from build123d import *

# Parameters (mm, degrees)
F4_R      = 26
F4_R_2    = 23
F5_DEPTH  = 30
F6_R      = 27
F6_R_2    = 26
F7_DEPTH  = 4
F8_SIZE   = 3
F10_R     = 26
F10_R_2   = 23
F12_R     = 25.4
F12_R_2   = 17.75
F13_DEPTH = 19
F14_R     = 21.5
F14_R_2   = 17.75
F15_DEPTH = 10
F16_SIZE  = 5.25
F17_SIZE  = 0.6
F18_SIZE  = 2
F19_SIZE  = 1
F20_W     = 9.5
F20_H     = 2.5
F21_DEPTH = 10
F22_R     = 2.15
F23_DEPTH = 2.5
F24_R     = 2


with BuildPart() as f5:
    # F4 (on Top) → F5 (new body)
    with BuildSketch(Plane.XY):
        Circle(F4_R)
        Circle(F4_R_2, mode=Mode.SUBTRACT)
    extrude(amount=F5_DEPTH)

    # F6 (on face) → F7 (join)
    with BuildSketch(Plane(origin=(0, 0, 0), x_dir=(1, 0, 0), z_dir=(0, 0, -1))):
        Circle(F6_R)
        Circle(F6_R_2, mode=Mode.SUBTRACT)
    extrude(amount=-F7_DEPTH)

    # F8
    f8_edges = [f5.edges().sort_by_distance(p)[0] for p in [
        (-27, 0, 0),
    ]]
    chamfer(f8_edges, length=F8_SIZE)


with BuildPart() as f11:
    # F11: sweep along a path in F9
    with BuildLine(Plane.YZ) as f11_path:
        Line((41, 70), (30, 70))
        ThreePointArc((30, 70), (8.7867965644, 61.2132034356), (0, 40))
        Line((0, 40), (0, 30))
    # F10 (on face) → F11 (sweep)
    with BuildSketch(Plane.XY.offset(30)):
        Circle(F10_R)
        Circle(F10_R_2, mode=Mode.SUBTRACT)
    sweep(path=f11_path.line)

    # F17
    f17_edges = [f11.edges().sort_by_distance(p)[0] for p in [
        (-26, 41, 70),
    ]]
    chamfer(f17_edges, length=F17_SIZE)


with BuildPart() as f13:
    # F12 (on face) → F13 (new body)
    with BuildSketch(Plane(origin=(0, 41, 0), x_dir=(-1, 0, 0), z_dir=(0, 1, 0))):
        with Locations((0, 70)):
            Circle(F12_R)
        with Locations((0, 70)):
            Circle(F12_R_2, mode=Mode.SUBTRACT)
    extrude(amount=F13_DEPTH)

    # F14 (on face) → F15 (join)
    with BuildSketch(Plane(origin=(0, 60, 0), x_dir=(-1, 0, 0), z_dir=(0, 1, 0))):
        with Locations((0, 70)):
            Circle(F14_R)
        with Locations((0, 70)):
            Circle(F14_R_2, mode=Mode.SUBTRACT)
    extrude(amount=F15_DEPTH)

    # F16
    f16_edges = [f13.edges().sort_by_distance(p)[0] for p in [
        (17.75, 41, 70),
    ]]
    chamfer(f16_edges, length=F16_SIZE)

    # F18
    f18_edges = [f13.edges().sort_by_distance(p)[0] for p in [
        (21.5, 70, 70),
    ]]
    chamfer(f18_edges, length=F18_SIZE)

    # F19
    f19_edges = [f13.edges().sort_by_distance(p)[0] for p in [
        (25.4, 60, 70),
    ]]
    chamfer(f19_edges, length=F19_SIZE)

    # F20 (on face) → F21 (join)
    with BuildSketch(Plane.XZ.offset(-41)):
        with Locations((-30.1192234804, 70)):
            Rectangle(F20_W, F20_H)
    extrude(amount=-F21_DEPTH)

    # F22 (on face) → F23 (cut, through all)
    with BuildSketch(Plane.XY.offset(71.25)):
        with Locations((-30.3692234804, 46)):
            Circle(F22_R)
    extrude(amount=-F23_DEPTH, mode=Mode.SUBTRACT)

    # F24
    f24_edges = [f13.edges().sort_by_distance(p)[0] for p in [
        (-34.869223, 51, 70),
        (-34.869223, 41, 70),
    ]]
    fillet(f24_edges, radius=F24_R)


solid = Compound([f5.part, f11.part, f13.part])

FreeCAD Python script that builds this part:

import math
import FreeCAD as App
import Part
import Sketcher
from FreeCAD import Vector
Q = App.Units.Quantity


def edges_at(feature, points):
    """Names of the edges that pass closest to the given points."""
    edges = feature.Shape.Edges
    near = lambda p: min(range(len(edges)), key=lambda i: edges[i].distToShape(Part.Vertex(*p))[0])
    return sorted({f"Edge{near(p) + 1}" for p in points})

doc = App.newDocument("Part")
body = doc.addObject("PartDesign::Body", "Body")

# Sketch on XY plane
sketch1 = body.newObject("Sketcher::SketchObject", "Sketch")
sketch1.AttachmentSupport = (doc.getObject("XY_Plane"), [""])
sketch1.MapMode = "FlatFace"
sketch1.addGeometry([
    Part.Circle(Vector(0, 0, 0), Vector(0, 0, 1), 26),
    Part.Circle(Vector(0, 0, 0), Vector(0, 0, 1), 23),
], False)
sketch1.addConstraint([
    Sketcher.Constraint("Coincident", 0, 3, -1, 1),
    Sketcher.Constraint("Coincident", 1, 3, -1, 1),
    Sketcher.Constraint("Diameter", 0, Q("52 mm")),
    Sketcher.Constraint("Diameter", 1, Q("46 mm")),
])
pad1 = body.newObject("PartDesign::Pad", "Pad")
pad1.Profile = sketch1
pad1.Length = 30

# Sketch on XY plane
sketch2 = body.newObject("Sketcher::SketchObject", "Sketch001")
sketch2.AttachmentSupport = (doc.getObject("XY_Plane"), [""])
sketch2.MapMode = "FlatFace"
sketch2.addGeometry([
    Part.Circle(Vector(0, 0, 0), Vector(0, 0, 1), 27),
    Part.Circle(Vector(0, 0, 0), Vector(0, 0, 1), 26),
], False)
sketch2.addConstraint([
    Sketcher.Constraint("Coincident", 0, 3, -1, 1),
    Sketcher.Constraint("Coincident", 1, 3, -1, 1),
    Sketcher.Constraint("Diameter", 0, Q("54 mm")),
    Sketcher.Constraint("Diameter", 1, Q("52 mm")),
])
pad2 = body.newObject("PartDesign::Pad", "Pad001")
pad2.Profile = sketch2
pad2.Length = 4
doc.recompute()

chamfer = body.newObject("PartDesign::Chamfer", "Chamfer")
chamfer.Base = (pad2, edges_at(pad2, [(-27, 0, 0)]))
chamfer.Size = 3
body2 = doc.addObject("PartDesign::Body", "Body001")

# Sketch on XY plane
sketch3 = body2.newObject("Sketcher::SketchObject", "Sketch002")
sketch3.AttachmentSupport = (doc.getObject("XY_Plane001"), [""])
sketch3.MapMode = "FlatFace"
sketch3.AttachmentOffset = App.Placement(Vector(0, 0, 30), App.Rotation())
sketch3.addGeometry([
    Part.Circle(Vector(0, 0, 0), Vector(0, 0, 1), 26),
    Part.Circle(Vector(0, 0, 0), Vector(0, 0, 1), 23),
], False)
sketch3.addConstraint([
    Sketcher.Constraint("Coincident", 0, 3, -1, 1),
    Sketcher.Constraint("Coincident", 1, 3, -1, 1),
    Sketcher.Constraint("Diameter", 0, Q("52 mm")),
    Sketcher.Constraint("Diameter", 1, Q("46 mm")),
])

# Sketch on YZ plane
sketch4 = body2.newObject("Sketcher::SketchObject", "Sketch003")
sketch4.AttachmentSupport = (doc.getObject("YZ_Plane001"), [""])
sketch4.MapMode = "FlatFace"
sketch4.addGeometry([
    Part.LineSegment(Vector(41, 70, 0), Vector(30, 70, 0)),
    Part.ArcOfCircle(Part.Circle(Vector(30, 40, 0), Vector(0, 0, 1), 30), math.radians(90), math.radians(180)),
    Part.LineSegment(Vector(0, 40, 0), Vector(0, 30, 0)),
], False)
sketch4.addConstraint([
    Sketcher.Constraint("Tangent", 0, 2, 1, 1),
    Sketcher.Constraint("Tangent", 1, 2, 2, 1),
    Sketcher.Constraint("Horizontal", 0),
    Sketcher.Constraint("Vertical", 2),
    Sketcher.Constraint("PointOnObject", 1, 2, -2),
    Sketcher.Constraint("Radius", 1, Q("30 mm")),
    Sketcher.Constraint("DistanceX", 0, 2, 0, 1, Q("11 mm")),
    Sketcher.Constraint("DistanceY", 2, 2, 2, 1, Q("10 mm")),
    Sketcher.Constraint("DistanceY", -1, 1, 1, 3, Q("40 mm")),
])
doc.recompute()

additivepipe = body2.newObject("PartDesign::AdditivePipe", "AdditivePipe")
additivepipe.Profile = sketch3
additivepipe.Spine = (sketch4, ["Edge1", "Edge2", "Edge3"])
doc.recompute()

chamfer2 = body2.newObject("PartDesign::Chamfer", "Chamfer001")
chamfer2.Base = (additivepipe, edges_at(additivepipe, [(-26, 41, 70)]))
chamfer2.Size = 0.6
body3 = doc.addObject("PartDesign::Body", "Body002")

# Sketch on XZ plane
sketch5 = body3.newObject("Sketcher::SketchObject", "Sketch004")
sketch5.AttachmentSupport = (doc.getObject("XZ_Plane002"), [""])
sketch5.MapMode = "FlatFace"
sketch5.AttachmentOffset = App.Placement(Vector(0, 0, -41), App.Rotation())
sketch5.addGeometry([
    Part.Circle(Vector(0, 70, 0), Vector(0, 0, 1), 25),
    Part.Circle(Vector(0, 70, 0), Vector(0, 0, 1), 18),
], False)
sketch5.addConstraint([
    Sketcher.Constraint("Coincident", 1, 3, 0, 3),
    Sketcher.Constraint("PointOnObject", 0, 3, -2),
    Sketcher.Constraint("Diameter", 0, Q("50.8 mm")),
    Sketcher.Constraint("Diameter", 1, Q("35.5 mm")),
    Sketcher.Constraint("DistanceY", -1, 1, 0, 3, Q("70 mm")),
])
pad3 = body3.newObject("PartDesign::Pad", "Pad002")
pad3.Profile = sketch5
pad3.Length = 19
pad3.Reversed = True

# Sketch on XZ plane
sketch6 = body3.newObject("Sketcher::SketchObject", "Sketch005")
sketch6.AttachmentSupport = (doc.getObject("XZ_Plane002"), [""])
sketch6.MapMode = "FlatFace"
sketch6.AttachmentOffset = App.Placement(Vector(0, 0, -60), App.Rotation())
sketch6.addGeometry([
    Part.Circle(Vector(0, 70, 0), Vector(0, 0, 1), 22),
    Part.Circle(Vector(0, 70, 0), Vector(0, 0, 1), 18),
], False)
sketch6.addConstraint([
    Sketcher.Constraint("Coincident", 1, 3, 0, 3),
    Sketcher.Constraint("PointOnObject", 0, 3, -2),
    Sketcher.Constraint("Diameter", 0, Q("43 mm")),
    Sketcher.Constraint("Diameter", 1, Q("35.5 mm")),
    Sketcher.Constraint("DistanceY", -1, 1, 0, 3, Q("70 mm")),
])
pad4 = body3.newObject("PartDesign::Pad", "Pad003")
pad4.Profile = sketch6
pad4.Length = 10
pad4.Reversed = True
doc.recompute()

chamfer3 = body3.newObject("PartDesign::Chamfer", "Chamfer002")
chamfer3.Base = (pad4, edges_at(pad4, [(17.75, 41, 70)]))
chamfer3.Size = 5.25
doc.recompute()

chamfer4 = body3.newObject("PartDesign::Chamfer", "Chamfer003")
chamfer4.Base = (chamfer3, edges_at(chamfer3, [(21.5, 70, 70)]))
chamfer4.Size = 2
doc.recompute()

chamfer5 = body3.newObject("PartDesign::Chamfer", "Chamfer004")
chamfer5.Base = (chamfer4, edges_at(chamfer4, [(25.4, 60, 70)]))
chamfer5.Size = 1

# Sketch on XZ plane
sketch7 = body3.newObject("Sketcher::SketchObject", "Sketch006")
sketch7.AttachmentSupport = (doc.getObject("XZ_Plane002"), [""])
sketch7.MapMode = "FlatFace"
sketch7.AttachmentOffset = App.Placement(Vector(0, 0, -41), App.Rotation())
sketch7.addGeometry([
    Part.LineSegment(Vector(-34.9, 71.2, 0), Vector(-34.9, 68.8, 0)),
    Part.LineSegment(Vector(-34.9, 68.8, 0), Vector(-25.4, 68.8, 0)),
    Part.LineSegment(Vector(-25.4, 68.8, 0), Vector(-25.4, 71.2, 0)),
    Part.LineSegment(Vector(-25.4, 71.2, 0), Vector(-34.9, 71.2, 0)),
], False)
sketch7.addConstraint([
    Sketcher.Constraint("Coincident", 0, 2, 1, 1),
    Sketcher.Constraint("Coincident", 1, 2, 2, 1),
    Sketcher.Constraint("Coincident", 2, 2, 3, 1),
    Sketcher.Constraint("Coincident", 3, 2, 0, 1),
    Sketcher.Constraint("Vertical", 0),
    Sketcher.Constraint("Horizontal", 1),
    Sketcher.Constraint("Vertical", 2),
    Sketcher.Constraint("Horizontal", 3),
    Sketcher.Constraint("DistanceX", 1, 1, 1, 2, Q("9.5 mm")),
    Sketcher.Constraint("DistanceY", 0, 2, 0, 1, Q("2.5 mm")),
    Sketcher.Constraint("DistanceY", -1, 1, 0, 2, Q("68.75 mm")),
    Sketcher.Constraint("DistanceX", 0, 2, -1, 1, Q("34.869223 mm")),
])
pad5 = body3.newObject("PartDesign::Pad", "Pad004")
pad5.Profile = sketch7
pad5.Length = 10
pad5.Reversed = True

# Sketch on XY plane
sketch8 = body3.newObject("Sketcher::SketchObject", "Sketch007")
sketch8.AttachmentSupport = (doc.getObject("XY_Plane002"), [""])
sketch8.MapMode = "FlatFace"
sketch8.AttachmentOffset = App.Placement(Vector(0, 0, 71.25), App.Rotation())
sketch8.addGeometry(Part.Circle(Vector(-30.4, 46, 0), Vector(0, 0, 1), 2.1), False)
sketch8.addConstraint([
    Sketcher.Constraint("Diameter", 0, Q("4.3 mm")),
    Sketcher.Constraint("DistanceY", -1, 1, 0, 3, Q("46 mm")),
    Sketcher.Constraint("DistanceX", 0, 3, -1, 1, Q("30.369223 mm")),
])
pocket1 = body3.newObject("PartDesign::Pocket", "Pocket")
pocket1.Profile = sketch8
pocket1.Type = "ThroughAll"
doc.recompute()

fillet = body3.newObject("PartDesign::Fillet", "Fillet")
fillet.Base = (pocket1, edges_at(pocket1, [(-34.869, 51, 70), (-34.869, 41, 70)]))
fillet.Radius = 2

doc.recompute()
